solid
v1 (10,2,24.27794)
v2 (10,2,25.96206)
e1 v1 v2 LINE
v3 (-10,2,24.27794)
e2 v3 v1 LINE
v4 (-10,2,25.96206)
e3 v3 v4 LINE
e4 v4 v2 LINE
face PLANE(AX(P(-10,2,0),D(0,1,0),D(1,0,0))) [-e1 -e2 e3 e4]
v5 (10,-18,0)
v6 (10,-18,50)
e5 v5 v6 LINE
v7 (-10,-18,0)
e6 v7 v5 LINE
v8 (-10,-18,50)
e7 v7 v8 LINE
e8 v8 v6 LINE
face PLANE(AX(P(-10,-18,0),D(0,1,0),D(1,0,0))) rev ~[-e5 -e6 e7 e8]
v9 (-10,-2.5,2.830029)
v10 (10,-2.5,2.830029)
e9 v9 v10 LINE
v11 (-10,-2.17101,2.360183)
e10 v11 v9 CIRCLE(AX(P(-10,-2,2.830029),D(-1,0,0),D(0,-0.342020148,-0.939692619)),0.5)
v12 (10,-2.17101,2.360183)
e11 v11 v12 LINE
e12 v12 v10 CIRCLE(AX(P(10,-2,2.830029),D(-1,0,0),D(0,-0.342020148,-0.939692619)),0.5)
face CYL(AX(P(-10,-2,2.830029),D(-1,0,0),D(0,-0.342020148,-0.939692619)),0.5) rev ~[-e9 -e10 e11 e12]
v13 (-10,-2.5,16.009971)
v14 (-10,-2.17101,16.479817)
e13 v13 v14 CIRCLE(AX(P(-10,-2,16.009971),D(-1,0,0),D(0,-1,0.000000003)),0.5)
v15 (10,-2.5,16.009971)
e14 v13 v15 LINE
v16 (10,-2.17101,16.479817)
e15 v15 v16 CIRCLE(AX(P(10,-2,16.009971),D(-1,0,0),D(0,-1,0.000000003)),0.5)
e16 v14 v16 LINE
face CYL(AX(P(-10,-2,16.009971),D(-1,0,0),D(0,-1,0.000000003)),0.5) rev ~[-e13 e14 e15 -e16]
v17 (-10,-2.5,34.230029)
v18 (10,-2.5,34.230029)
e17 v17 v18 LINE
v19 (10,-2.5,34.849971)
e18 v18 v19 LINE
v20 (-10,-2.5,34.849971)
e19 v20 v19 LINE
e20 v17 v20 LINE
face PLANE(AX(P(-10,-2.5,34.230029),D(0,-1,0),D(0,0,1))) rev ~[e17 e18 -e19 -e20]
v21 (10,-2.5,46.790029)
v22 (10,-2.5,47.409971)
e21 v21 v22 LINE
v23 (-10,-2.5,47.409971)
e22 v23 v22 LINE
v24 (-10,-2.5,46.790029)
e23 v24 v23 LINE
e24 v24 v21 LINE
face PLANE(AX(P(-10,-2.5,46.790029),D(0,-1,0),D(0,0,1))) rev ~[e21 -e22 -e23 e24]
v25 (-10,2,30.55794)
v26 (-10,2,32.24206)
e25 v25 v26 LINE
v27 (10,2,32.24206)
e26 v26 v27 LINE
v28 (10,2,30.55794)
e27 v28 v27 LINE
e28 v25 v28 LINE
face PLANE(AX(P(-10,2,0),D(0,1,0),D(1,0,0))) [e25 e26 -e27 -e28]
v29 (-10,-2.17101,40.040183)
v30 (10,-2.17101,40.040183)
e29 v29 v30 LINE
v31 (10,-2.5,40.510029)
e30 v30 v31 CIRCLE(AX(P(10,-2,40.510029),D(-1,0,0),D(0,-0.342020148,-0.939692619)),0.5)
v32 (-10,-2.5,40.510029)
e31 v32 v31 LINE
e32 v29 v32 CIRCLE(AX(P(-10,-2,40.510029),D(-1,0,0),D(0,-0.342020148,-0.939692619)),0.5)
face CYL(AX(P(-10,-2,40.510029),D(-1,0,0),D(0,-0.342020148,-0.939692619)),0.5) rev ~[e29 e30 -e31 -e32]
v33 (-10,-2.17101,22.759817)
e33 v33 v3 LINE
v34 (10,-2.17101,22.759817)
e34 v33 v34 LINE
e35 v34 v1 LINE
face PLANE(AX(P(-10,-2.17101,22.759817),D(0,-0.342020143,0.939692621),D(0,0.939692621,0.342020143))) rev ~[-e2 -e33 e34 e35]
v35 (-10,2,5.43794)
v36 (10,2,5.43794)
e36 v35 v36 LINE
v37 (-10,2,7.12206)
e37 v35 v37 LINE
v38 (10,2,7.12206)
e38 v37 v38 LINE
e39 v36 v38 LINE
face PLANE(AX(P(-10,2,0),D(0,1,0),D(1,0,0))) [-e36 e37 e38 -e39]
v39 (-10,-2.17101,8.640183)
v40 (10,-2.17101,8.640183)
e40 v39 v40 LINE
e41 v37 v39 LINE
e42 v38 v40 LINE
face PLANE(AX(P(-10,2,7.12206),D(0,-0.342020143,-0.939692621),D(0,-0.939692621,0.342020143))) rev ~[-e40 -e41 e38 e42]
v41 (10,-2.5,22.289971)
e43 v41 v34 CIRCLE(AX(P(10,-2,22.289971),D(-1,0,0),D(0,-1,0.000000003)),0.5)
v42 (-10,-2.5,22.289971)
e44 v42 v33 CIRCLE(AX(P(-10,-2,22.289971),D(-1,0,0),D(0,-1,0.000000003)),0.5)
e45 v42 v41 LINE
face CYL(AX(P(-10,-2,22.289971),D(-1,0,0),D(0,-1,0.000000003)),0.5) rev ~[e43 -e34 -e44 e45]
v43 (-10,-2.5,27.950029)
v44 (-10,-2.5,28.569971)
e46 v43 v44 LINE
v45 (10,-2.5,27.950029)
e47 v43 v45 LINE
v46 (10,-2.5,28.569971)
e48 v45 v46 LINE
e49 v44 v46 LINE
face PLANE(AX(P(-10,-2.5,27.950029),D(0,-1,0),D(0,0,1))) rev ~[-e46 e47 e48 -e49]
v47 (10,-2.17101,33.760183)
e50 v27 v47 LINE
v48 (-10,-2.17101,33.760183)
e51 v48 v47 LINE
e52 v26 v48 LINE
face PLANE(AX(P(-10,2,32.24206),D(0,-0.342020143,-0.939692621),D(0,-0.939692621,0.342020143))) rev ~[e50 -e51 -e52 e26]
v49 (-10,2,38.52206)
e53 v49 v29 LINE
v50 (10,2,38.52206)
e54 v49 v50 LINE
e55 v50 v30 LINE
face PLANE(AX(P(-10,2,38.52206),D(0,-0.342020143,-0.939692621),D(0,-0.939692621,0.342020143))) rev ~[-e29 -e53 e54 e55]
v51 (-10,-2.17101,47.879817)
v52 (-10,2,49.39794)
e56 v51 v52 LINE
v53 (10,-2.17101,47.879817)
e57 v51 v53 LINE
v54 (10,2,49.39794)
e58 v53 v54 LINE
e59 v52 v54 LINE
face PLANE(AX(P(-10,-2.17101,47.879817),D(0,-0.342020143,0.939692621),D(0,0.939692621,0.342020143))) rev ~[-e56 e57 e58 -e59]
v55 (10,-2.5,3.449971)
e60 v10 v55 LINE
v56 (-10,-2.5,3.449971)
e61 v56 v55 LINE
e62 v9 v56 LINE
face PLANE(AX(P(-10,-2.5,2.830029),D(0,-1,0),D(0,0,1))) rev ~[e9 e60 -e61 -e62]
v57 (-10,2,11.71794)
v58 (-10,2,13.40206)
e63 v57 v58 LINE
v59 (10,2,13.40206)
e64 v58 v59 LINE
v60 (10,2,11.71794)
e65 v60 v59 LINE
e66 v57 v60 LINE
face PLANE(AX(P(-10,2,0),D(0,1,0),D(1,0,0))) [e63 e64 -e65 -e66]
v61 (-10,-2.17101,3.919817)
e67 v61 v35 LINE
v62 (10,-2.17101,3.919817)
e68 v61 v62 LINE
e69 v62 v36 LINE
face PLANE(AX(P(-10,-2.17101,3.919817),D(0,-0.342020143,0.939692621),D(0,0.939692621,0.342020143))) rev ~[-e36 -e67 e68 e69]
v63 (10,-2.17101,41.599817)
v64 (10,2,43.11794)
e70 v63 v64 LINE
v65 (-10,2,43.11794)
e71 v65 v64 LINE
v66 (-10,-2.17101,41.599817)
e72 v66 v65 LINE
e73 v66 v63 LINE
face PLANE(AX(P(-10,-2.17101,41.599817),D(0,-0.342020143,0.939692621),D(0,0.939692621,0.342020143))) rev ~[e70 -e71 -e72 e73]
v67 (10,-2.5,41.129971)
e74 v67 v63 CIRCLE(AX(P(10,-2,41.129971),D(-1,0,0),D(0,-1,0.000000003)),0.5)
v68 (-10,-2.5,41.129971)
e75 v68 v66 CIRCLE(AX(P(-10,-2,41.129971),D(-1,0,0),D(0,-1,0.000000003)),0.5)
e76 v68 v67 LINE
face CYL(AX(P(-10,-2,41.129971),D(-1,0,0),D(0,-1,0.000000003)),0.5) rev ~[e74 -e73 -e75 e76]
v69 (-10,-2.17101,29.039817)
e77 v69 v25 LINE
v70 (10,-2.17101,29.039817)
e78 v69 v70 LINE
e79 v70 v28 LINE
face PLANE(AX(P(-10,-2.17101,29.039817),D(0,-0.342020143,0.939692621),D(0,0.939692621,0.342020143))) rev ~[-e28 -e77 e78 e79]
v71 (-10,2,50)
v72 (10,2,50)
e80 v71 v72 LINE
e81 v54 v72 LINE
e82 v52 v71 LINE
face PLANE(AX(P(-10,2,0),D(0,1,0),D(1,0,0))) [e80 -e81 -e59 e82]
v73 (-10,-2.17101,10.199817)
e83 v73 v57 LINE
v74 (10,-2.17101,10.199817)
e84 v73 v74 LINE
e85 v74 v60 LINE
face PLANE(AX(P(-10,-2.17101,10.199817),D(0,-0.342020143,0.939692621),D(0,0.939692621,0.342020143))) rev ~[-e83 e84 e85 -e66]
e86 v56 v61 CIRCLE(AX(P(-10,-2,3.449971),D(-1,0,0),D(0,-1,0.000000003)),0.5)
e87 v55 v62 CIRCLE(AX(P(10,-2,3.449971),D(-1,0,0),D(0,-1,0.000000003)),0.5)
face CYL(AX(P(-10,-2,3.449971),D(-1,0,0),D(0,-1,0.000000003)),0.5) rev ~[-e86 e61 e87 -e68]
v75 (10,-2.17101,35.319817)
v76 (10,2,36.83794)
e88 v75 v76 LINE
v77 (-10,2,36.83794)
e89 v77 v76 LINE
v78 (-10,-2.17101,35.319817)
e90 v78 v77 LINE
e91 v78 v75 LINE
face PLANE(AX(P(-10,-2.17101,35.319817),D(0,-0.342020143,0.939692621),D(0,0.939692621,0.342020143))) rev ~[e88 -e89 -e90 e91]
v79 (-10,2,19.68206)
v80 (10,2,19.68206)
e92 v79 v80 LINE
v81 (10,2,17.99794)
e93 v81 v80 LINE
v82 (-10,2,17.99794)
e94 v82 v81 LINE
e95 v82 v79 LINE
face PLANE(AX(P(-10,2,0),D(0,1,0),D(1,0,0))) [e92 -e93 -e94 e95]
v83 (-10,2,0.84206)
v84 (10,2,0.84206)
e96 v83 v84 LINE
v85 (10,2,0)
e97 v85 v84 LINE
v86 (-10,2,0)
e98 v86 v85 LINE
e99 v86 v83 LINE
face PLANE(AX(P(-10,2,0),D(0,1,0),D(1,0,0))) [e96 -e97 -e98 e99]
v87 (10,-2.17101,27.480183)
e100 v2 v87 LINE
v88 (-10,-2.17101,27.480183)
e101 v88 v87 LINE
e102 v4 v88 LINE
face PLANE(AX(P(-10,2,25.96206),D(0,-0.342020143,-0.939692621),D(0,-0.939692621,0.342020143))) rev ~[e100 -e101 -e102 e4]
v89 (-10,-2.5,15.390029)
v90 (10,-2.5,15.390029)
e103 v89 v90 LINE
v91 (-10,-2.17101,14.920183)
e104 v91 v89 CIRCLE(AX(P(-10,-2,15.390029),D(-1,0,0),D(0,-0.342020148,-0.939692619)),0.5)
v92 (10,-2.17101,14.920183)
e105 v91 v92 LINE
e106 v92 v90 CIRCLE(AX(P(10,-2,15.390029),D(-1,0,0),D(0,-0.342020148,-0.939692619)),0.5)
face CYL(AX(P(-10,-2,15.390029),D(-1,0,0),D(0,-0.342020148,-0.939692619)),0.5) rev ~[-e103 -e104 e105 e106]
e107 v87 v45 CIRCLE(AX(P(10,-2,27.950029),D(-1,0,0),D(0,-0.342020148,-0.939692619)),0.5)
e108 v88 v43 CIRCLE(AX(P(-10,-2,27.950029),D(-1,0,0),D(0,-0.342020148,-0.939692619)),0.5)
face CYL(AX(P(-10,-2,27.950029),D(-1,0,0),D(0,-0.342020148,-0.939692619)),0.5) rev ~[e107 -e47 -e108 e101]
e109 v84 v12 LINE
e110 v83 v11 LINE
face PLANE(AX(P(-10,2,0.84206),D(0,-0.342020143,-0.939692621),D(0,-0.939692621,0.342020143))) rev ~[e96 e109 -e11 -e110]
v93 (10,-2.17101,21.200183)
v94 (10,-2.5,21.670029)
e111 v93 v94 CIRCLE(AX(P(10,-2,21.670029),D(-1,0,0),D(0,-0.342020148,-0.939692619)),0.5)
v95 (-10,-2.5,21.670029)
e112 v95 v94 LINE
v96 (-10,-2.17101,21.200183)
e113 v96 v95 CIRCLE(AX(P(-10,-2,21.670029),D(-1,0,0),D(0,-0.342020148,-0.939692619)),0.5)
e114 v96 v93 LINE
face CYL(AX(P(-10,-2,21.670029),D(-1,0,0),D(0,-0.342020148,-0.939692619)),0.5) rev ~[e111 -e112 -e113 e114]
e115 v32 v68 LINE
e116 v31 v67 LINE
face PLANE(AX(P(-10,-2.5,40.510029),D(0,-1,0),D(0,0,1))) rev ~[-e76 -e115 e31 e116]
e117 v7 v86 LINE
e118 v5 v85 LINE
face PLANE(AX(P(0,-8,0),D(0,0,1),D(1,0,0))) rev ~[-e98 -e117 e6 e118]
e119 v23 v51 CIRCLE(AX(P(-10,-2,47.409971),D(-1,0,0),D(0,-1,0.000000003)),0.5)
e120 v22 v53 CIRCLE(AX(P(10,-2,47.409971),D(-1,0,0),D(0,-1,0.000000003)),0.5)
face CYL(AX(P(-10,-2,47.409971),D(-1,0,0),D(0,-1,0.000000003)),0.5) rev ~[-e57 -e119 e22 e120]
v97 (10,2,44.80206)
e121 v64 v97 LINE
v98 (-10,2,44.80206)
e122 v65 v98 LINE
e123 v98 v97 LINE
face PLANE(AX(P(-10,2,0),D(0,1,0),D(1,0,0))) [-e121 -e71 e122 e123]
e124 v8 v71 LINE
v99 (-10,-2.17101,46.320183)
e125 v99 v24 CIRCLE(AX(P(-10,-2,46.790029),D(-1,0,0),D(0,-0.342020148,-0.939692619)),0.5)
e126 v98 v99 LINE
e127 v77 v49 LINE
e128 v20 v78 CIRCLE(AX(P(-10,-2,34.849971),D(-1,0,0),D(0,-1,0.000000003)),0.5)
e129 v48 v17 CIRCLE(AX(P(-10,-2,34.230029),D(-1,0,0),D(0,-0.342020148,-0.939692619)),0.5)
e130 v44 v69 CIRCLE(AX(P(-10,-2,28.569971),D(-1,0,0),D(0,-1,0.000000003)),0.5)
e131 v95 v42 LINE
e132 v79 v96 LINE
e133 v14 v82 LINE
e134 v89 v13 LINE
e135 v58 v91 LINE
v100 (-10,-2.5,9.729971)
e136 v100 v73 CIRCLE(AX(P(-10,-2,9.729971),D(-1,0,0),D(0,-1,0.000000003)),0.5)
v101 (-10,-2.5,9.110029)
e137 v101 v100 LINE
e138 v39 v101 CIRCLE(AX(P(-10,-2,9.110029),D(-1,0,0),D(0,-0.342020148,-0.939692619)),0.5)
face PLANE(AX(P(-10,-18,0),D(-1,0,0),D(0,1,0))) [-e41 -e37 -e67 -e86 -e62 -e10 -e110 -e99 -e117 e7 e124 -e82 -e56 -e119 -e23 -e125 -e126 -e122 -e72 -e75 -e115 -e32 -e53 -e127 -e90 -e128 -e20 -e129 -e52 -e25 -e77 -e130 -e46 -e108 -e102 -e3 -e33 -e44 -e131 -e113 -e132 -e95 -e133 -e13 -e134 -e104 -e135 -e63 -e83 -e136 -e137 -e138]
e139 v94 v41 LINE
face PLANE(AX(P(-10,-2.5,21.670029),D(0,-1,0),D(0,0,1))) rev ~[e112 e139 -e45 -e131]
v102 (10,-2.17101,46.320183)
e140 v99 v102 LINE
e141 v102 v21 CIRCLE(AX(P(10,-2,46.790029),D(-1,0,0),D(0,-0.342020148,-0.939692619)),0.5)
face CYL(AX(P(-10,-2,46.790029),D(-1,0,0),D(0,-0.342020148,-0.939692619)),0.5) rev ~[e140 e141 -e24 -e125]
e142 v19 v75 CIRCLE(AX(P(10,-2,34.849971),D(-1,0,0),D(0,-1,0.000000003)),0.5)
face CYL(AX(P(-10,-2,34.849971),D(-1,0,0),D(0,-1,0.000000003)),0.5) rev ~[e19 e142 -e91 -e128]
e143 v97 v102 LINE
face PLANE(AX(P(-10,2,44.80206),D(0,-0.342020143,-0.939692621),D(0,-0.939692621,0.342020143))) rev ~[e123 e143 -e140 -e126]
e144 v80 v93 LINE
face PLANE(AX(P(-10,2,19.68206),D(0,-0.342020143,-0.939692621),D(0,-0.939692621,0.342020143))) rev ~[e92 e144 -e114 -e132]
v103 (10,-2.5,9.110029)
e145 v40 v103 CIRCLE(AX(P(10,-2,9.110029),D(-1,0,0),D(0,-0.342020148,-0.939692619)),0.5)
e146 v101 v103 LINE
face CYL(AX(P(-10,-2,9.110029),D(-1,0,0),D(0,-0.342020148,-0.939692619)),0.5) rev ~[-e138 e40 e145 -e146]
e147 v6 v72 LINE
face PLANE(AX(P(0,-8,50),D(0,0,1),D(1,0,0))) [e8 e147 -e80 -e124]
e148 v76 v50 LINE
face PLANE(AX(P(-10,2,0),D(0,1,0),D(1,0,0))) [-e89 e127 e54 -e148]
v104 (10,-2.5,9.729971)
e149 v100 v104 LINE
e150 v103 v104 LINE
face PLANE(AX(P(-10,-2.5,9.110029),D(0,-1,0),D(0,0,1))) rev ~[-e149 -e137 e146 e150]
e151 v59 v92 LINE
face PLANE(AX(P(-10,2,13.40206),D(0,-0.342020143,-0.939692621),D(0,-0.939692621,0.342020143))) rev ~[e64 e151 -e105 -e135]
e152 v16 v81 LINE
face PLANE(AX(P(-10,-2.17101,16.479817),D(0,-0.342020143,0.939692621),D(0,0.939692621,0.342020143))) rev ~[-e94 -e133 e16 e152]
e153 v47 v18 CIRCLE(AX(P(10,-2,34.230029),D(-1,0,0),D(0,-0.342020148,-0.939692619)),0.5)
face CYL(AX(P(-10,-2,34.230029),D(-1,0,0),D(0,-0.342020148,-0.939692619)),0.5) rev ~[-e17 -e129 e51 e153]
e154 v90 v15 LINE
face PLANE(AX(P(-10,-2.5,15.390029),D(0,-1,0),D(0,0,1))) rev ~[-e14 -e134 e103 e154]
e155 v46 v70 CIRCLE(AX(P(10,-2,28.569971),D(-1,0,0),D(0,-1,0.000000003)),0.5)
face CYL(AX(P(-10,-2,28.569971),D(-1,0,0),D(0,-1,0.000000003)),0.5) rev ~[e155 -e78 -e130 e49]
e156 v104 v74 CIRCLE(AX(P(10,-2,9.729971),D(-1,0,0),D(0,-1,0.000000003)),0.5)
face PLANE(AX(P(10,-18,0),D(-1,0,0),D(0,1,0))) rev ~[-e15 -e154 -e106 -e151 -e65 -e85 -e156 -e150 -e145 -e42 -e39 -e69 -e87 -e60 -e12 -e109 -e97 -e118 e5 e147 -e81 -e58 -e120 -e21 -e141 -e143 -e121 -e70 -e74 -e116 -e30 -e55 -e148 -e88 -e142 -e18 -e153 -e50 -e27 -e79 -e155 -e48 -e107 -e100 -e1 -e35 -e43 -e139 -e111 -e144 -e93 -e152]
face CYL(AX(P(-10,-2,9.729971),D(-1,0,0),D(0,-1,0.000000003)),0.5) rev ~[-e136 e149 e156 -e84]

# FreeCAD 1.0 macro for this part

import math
import FreeCAD as App
import Part
import Sketcher
from FreeCAD import Vector
Q = App.Units.Quantity


def add_polygon(sketch, points):
    """Adds a closed chain of lines whose ends are joined by coincident constraints."""
    first, n = sketch.GeometryCount, len(points)
    for a, b in zip(points, points[1:] + points[:1]):
        sketch.addGeometry(Part.LineSegment(App.Vector(*a, 0), App.Vector(*b, 0)), False)
    for i in range(n):
        sketch.addConstraint(Sketcher.Constraint("Coincident", first + i, 2, first + (i + 1) % n, 1))

doc = App.newDocument("Part")
body = doc.addObject("PartDesign::Body", "Body")

# Sketch on XY plane
sketch1 = body.newObject("Sketcher::SketchObject", "Sketch")
sketch1.AttachmentSupport = (doc.getObject("XY_Plane"), [""])
sketch1.MapMode = "FlatFace"
add_polygon(sketch1, [(-10, 2), (-10, -18), (10, -18), (10, 2)])  # lines 0-3
sketch1.addConstraint([
    Sketcher.Constraint("Vertical", 0),
    Sketcher.Constraint("Horizontal", 1),
    Sketcher.Constraint("Vertical", 2),
    Sketcher.Constraint("Horizontal", 3),
    Sketcher.Constraint("Equal", 3, 0),
    Sketcher.Constraint("DistanceX", 1, 1, 1, 2, 20.0),
    Sketcher.Constraint("DistanceX", 0, 2, -1, 1, 10.0),
    Sketcher.Constraint("DistanceY", 0, 2, -1, 1, 18.0),
])
pad1 = body.newObject("PartDesign::Pad", "Pad")
pad1.Profile = sketch1
pad1.Length = 50

# Sketch on YZ plane
sketch2 = body.newObject("Sketcher::SketchObject", "Sketch001")
sketch2.AttachmentSupport = (doc.getObject("YZ_Plane"), [""])
sketch2.MapMode = "FlatFace"
sketch2.AttachmentOffset = App.Placement(Vector(0, 0, -10), App.Rotation())
sketch2.addGeometry([
    Part.LineSegment(Vector(2, 0.8, 0), Vector(-2.2, 2.4, 0)),  # 0
    Part.ArcOfCircle(Part.Circle(Vector(-2, 2.8, 0), Vector(0, 0, 1), 0.5), math.radians(-180), math.radians(-110)),  # 1
    Part.LineSegment(Vector(-2.5, 2.8, 0), Vector(-2.5, 3.4, 0)),  # 2
    Part.ArcOfCircle(Part.Circle(Vector(-2, 3.4, 0), Vector(0, 0, 1), 0.5), math.radians(110), math.radians(180)),  # 3
    Part.LineSegment(Vector(-2.2, 3.9, 0), Vector(2, 5.4, 0)),  # 4
    Part.LineSegment(Vector(2, 5.4, 0), Vector(2, 0.8, 0)),  # 5
], False)
sketch2.addConstraint([
    Sketcher.Constraint("Tangent", 0, 2, 1, 2),
    Sketcher.Constraint("Tangent", 1, 1, 2, 1),
    Sketcher.Constraint("Tangent", 2, 2, 3, 2),
    Sketcher.Constraint("Tangent", 3, 1, 4, 1),
    Sketcher.Constraint("Coincident", 4, 2, 5, 1),
    Sketcher.Constraint("Coincident", 5, 2, 0, 1),
    Sketcher.Constraint("Vertical", 2),
    Sketcher.Constraint("Vertical", 5),
    Sketcher.Constraint("Equal", 1, 3),
    Sketcher.Constraint("Vertical", 0, 2, 3, 1),
    Sketcher.Constraint("Radius", 1, 0.5),
    Sketcher.Constraint("Angle", 0, Q("160 deg")),
    Sketcher.Constraint("DistanceX", 1, 3, -1, 1, 2.0),
    Sketcher.Constraint("DistanceX", -1, 1, 4, 2, 2.0),
    Sketcher.Constraint("DistanceY", 2, 1, 2, 2, 0.619941),
    Sketcher.Constraint("DistanceY", -1, 1, 1, 3, 2.830029),
])
pocket1 = body.newObject("PartDesign::Pocket", "Pocket")
pocket1.Profile = sketch2
pocket1.Type = "ThroughAll"
pocket1.Reversed = True
doc.recompute()

linearpattern = body.newObject("PartDesign::LinearPattern", "LinearPattern")
linearpattern.Originals = [pocket1]
linearpattern.Direction = (doc.getObject("Z_Axis"), [""])
linearpattern.Mode = "offset"
linearpattern.Offset = 6.28
linearpattern.Occurrences = 8
body.Tip = linearpattern

doc.recompute()
